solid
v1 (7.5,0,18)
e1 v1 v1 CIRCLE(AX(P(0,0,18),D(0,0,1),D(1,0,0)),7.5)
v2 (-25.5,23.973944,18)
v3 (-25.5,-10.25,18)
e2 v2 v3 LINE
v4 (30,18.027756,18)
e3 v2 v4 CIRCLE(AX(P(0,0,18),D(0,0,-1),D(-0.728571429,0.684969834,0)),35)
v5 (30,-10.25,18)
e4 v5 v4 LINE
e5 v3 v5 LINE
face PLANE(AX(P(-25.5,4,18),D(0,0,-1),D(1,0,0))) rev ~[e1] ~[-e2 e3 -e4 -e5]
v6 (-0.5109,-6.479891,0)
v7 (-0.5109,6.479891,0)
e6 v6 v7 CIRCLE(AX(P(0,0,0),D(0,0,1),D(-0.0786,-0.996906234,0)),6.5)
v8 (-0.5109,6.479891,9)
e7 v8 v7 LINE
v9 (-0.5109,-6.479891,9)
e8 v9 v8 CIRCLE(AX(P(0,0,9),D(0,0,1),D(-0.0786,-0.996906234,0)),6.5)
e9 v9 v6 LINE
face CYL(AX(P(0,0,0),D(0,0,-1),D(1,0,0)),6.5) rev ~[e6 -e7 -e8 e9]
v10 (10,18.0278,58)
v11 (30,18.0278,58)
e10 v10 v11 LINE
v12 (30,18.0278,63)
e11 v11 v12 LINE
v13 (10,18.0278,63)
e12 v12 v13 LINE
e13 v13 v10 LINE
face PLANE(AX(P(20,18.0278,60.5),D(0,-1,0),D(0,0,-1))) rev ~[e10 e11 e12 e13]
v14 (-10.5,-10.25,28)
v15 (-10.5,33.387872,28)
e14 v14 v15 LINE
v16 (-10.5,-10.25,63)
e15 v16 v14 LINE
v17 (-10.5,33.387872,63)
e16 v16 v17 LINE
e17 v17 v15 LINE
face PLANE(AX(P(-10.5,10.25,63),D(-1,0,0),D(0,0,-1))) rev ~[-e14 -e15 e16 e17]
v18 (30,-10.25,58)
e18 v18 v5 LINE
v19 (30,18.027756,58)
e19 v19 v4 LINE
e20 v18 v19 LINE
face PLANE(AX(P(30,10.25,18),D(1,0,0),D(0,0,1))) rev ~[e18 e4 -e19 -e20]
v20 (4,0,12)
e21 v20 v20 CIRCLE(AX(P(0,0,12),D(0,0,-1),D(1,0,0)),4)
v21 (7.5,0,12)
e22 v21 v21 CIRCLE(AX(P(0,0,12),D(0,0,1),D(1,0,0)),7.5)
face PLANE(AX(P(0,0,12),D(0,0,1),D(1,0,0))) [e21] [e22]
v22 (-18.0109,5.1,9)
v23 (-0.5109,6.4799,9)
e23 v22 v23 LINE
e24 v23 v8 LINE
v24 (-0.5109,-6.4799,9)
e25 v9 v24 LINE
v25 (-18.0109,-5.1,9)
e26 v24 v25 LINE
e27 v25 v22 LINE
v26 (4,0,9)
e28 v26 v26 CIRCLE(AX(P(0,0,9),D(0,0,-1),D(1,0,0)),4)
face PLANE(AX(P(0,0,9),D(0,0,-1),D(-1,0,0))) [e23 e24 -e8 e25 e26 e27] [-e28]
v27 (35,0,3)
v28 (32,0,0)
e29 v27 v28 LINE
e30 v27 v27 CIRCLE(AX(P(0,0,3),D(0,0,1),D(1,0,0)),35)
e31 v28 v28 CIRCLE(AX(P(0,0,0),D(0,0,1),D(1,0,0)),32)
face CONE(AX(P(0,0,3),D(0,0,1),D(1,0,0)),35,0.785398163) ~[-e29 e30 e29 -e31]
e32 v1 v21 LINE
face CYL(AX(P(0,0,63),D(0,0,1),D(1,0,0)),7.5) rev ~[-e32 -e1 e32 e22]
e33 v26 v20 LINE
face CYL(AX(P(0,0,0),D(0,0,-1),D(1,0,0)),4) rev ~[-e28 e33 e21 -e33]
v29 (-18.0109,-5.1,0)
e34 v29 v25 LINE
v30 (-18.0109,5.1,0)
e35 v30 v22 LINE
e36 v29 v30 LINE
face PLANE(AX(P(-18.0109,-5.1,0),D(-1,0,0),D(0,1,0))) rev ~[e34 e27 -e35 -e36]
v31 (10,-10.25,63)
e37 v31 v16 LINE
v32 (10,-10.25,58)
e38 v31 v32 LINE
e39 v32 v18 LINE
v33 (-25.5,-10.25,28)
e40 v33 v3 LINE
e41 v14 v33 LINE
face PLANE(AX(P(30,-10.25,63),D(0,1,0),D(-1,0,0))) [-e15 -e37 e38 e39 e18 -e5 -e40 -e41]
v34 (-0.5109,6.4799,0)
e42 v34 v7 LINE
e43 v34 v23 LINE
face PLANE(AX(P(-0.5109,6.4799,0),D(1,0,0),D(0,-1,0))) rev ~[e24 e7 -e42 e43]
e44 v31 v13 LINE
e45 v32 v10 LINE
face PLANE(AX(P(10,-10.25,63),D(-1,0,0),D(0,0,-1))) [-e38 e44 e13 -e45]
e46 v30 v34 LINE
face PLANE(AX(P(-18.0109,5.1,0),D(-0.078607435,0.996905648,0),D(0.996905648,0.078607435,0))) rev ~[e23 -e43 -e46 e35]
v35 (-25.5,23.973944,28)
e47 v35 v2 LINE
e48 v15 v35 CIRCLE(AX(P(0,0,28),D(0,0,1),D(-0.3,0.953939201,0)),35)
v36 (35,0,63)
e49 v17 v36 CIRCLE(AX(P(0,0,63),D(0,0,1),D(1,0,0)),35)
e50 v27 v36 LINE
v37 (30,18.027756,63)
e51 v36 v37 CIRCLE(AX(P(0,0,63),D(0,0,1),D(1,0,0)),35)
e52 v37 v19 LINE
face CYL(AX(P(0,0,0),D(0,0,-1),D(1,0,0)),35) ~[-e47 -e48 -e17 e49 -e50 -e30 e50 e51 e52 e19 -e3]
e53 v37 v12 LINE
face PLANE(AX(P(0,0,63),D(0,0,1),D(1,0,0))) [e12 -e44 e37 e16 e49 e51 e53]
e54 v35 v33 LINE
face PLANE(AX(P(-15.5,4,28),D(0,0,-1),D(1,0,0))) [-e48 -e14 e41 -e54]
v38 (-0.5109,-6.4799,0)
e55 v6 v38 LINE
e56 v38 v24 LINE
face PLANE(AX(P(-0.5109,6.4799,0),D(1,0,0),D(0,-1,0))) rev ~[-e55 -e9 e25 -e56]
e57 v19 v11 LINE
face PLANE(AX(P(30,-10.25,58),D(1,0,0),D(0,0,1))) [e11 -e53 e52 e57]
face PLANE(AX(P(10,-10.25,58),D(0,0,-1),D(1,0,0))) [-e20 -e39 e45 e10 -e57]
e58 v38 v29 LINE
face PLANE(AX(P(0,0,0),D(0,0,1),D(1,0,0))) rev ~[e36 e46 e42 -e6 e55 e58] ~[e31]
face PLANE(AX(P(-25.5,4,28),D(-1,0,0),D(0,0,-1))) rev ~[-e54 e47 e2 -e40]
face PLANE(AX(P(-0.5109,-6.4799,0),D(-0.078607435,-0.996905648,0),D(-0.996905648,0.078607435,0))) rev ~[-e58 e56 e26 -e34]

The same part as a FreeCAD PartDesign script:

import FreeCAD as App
import Part
import Sketcher
from FreeCAD import Vector
Q = App.Units.Quantity


def edges_at(feature, points):
    """Names of the edges that pass closest to the given points."""
    edges = feature.Shape.Edges
    near = lambda p: min(range(len(edges)), key=lambda i: edges[i].distToShape(Part.Vertex(*p))[0])
    return sorted({f"Edge{near(p) + 1}" for p in points})


def add_polygon(sketch, points):
    """Adds a closed chain of lines whose ends are joined by coincident constraints."""
    first, n = sketch.GeometryCount, len(points)
    for a, b in zip(points, points[1:] + points[:1]):
        sketch.addGeometry(Part.LineSegment(App.Vector(*a, 0), App.Vector(*b, 0)), False)
    for i in range(n):
        sketch.addConstraint(Sketcher.Constraint("Coincident", first + i, 2, first + (i + 1) % n, 1))

doc = App.newDocument("Part")
body = doc.addObject("PartDesign::Body", "Body")

sketch1 = doc.addObject("Sketcher::SketchObject", "Sketch")
body.addObject(sketch1)
sketch1.AttachmentSupport = (doc.XY_Plane, [""])
sketch1.MapMode = "FlatFace"
sketch1.addGeometry(Part.Circle(Vector(0, 0, 0), Vector(0, 0, 1), 35), False)
sketch1.addConstraint(Sketcher.Constraint("Coincident", 0, 3, -1, 1))
sketch1.addConstraint(Sketcher.Constraint("Diameter", 0, Q("70 mm")))
pad1 = doc.addObject("PartDesign::Pad", "Pad")
body.addObject(pad1)
pad1.Profile = sketch1
pad1.Length = 63

sketch2 = doc.addObject("Sketcher::SketchObject", "Sketch001")
body.addObject(sketch2)
sketch2.AttachmentSupport = (doc.XY_Plane, [""])
sketch2.MapMode = "FlatFace"
sketch2.AttachmentOffset = App.Placement(Vector(0, 0, 63), App.Rotation())
add_polygon(sketch2, [(30, 10), (-10, 10), (-10, -10), (30, -10)])
sketch2.addConstraint(Sketcher.Constraint("Horizontal", 0))
sketch2.addConstraint(Sketcher.Constraint("Vertical", 1))
sketch2.addConstraint(Sketcher.Constraint("Horizontal", 2))
sketch2.addConstraint(Sketcher.Constraint("Vertical", 3))
sketch2.addConstraint(Sketcher.Constraint("DistanceX", 0, 2, -1, 1, Q("10.5 mm")))
sketch2.addConstraint(Sketcher.Constraint("DistanceX", 0, 2, 0, 1, Q("40.5 mm")))
sketch2.addConstraint(Sketcher.Constraint("DistanceY", 1, 2, 1, 1, Q("20.5 mm")))
sketch2.addConstraint(Sketcher.Constraint("DistanceY", -1, 1, 0, 2, Q("10.25 mm")))
pocket1 = doc.addObject("PartDesign::Pocket", "Pocket")
body.addObject(pocket1)
pocket1.Profile = sketch2
pocket1.Length = 45

sketch3 = doc.addObject("Sketcher::SketchObject", "Sketch002")
body.addObject(sketch3)
sketch3.AttachmentSupport = (doc.XY_Plane, [""])
sketch3.MapMode = "FlatFace"
sketch3.addGeometry(Part.Circle(Vector(0, 0, 0), Vector(0, 0, 1), 6), False)
sketch3.addConstraint(Sketcher.Constraint("Coincident", 0, 3, -1, 1))
sketch3.addConstraint(Sketcher.Constraint("Diameter", 0, Q("13 mm")))
pocket2 = doc.addObject("PartDesign::Pocket", "Pocket001")
body.addObject(pocket2)
pocket2.Profile = sketch3
pocket2.Length = 9
pocket2.Reversed = True

sketch4 = doc.addObject("Sketcher::SketchObject", "Sketch003")
body.addObject(sketch4)
sketch4.AttachmentSupport = (doc.XY_Plane, [""])
sketch4.MapMode = "FlatFace"
add_polygon(sketch4, [(-1, 6), (-1, -6), (-18, -5), (-18, 5)])
sketch4.addConstraint(Sketcher.Constraint("Vertical", 0))
sketch4.addConstraint(Sketcher.Constraint("Vertical", 2))
sketch4.addConstraint(Sketcher.Constraint("Equal", 1, 3))
sketch4.addConstraint(Sketcher.Constraint("DistanceY", 2, 1, 2, 2, Q("10.2 mm")))
sketch4.addConstraint(Sketcher.Constraint("DistanceX", 1, 2, -1, 1, Q("18.011 mm")))
sketch4.addConstraint(Sketcher.Constraint("DistanceY", 1, 2, -1, 1, Q("5.1 mm")))
sketch4.addConstraint(Sketcher.Constraint("DistanceX", 1, 2, 0, 2, Q("17.5 mm")))
sketch4.addConstraint(Sketcher.Constraint("DistanceY", 0, 2, -1, 1, Q("6.48 mm")))
pocket3 = doc.addObject("PartDesign::Pocket", "Pocket002")
body.addObject(pocket3)
pocket3.Profile = sketch4
pocket3.Length = 9
pocket3.Reversed = True

sketch5 = doc.addObject("Sketcher::SketchObject", "Sketch004")
body.addObject(sketch5)
sketch5.AttachmentSupport = (doc.XY_Plane, [""])
sketch5.MapMode = "FlatFace"
sketch5.AttachmentOffset = App.Placement(Vector(0, 0, 63), App.Rotation())
sketch5.addGeometry(Part.Circle(Vector(0, 0, 0), Vector(0, 0, 1), 8), False)
sketch5.addConstraint(Sketcher.Constraint("Coincident", 0, 3, -1, 1))
sketch5.addConstraint(Sketcher.Constraint("Diameter", 0, Q("15 mm")))
pocket4 = doc.addObject("PartDesign::Pocket", "Pocket003")
body.addObject(pocket4)
pocket4.Profile = sketch5
pocket4.Length = 51

sketch6 = doc.addObject("Sketcher::SketchObject", "Sketch005")
body.addObject(sketch6)
sketch6.AttachmentSupport = (doc.XY_Plane, [""])
sketch6.MapMode = "FlatFace"
sketch6.addGeometry(Part.Circle(Vector(0, 0, 0), Vector(0, 0, 1), 4), False)
sketch6.addConstraint(Sketcher.Constraint("Coincident", 0, 3, -1, 1))
sketch6.addConstraint(Sketcher.Constraint("Diameter", 0, Q("8 mm")))
pocket5 = doc.addObject("PartDesign::Pocket", "Pocket004")
body.addObject(pocket5)
pocket5.Profile = sketch6
pocket5.Type = "ThroughAll"
pocket5.Reversed = True

sketch7 = doc.addObject("Sketcher::SketchObject", "Sketch006")
body.addObject(sketch7)
sketch7.AttachmentSupport = (doc.XZ_Plane, [""])
sketch7.MapMode = "FlatFace"
sketch7.AttachmentOffset = App.Placement(Vector(0, 0, -10.25), App.Rotation())
add_polygon(sketch7, [(-10, 18), (30, 18), (30, 63), (-10, 63)])
sketch7.addConstraint(Sketcher.Constraint("Horizontal", 0))
sketch7.addConstraint(Sketcher.Constraint("Vertical", 1))
sketch7.addConstraint(Sketcher.Constraint("Horizontal", 2))
sketch7.addConstraint(Sketcher.Constraint("Vertical", 3))
sketch7.addConstraint(Sketcher.Constraint("DistanceY", 1, 1, 1, 2, Q("45 mm")))
sketch7.addConstraint(Sketcher.Constraint("DistanceX", 0, 1, 0, 2, Q("40.5 mm")))
sketch7.addConstraint(Sketcher.Constraint("DistanceX", -1, 1, 0, 2, Q("30 mm")))
sketch7.addConstraint(Sketcher.Constraint("DistanceY", -1, 1, 0, 2, Q("18 mm")))
pocket6 = doc.addObject("PartDesign::Pocket", "Pocket005")
body.addObject(pocket6)
pocket6.Profile = sketch7
pocket6.Type = "ThroughAll"

sketch8 = doc.addObject("Sketcher::SketchObject", "Sketch007")
body.addObject(sketch8)
sketch8.AttachmentSupport = (doc.XZ_Plane, [""])
sketch8.MapMode = "FlatFace"
sketch8.AttachmentOffset = App.Placement(Vector(0, 0, 10.25), App.Rotation())
add_polygon(sketch8, [(10, 63), (30, 63), (30, 58), (10, 58)])
sketch8.addConstraint(Sketcher.Constraint("Horizontal", 0))
sketch8.addConstraint(Sketcher.Constraint("Vertical", 1))
sketch8.addConstraint(Sketcher.Constraint("Horizontal", 2))
sketch8.addConstraint(Sketcher.Constraint("Vertical", 3))
sketch8.addConstraint(Sketcher.Constraint("DistanceX", 0, 1, 0, 2, Q("20 mm")))
sketch8.addConstraint(Sketcher.Constraint("DistanceY", 1, 2, 1, 1, Q("5 mm")))
sketch8.addConstraint(Sketcher.Constraint("DistanceX", -1, 1, 0, 2, Q("30 mm")))
sketch8.addConstraint(Sketcher.Constraint("DistanceY", -1, 1, 0, 2, Q("63 mm")))
pad2 = doc.addObject("PartDesign::Pad", "Pad001")
body.addObject(pad2)
pad2.Profile = sketch8
pad2.Length = 28.2778
pad2.Reversed = True

sketch9 = doc.addObject("Sketcher::SketchObject", "Sketch008")
body.addObject(sketch9)
sketch9.AttachmentSupport = (doc.XZ_Plane, [""])
sketch9.MapMode = "FlatFace"
sketch9.AttachmentOffset = App.Placement(Vector(0, 0, -4), App.Rotation())
add_polygon(sketch9, [(-10, 28), (-16, 28), (-16, 18), (-10, 18)])
sketch9.addConstraint(Sketcher.Constraint("Horizontal", 0))
sketch9.addConstraint(Sketcher.Constraint("Vertical", 1))
sketch9.addConstraint(Sketcher.Constraint("Horizontal", 2))
sketch9.addConstraint(Sketcher.Constraint("Vertical", 3))
sketch9.addConstraint(Sketcher.Constraint("DistanceX", 0, 2, 0, 1, Q("5 mm")))
sketch9.addConstraint(Sketcher.Constraint("DistanceY", 1, 2, 1, 1, Q("10 mm")))
sketch9.addConstraint(Sketcher.Constraint("DistanceY", -1, 1, 0, 2, Q("28 mm")))
sketch9.addConstraint(Sketcher.Constraint("DistanceX", 0, 2, -1, 1, Q("15.5 mm")))
pocket7 = doc.addObject("PartDesign::Pocket", "Pocket006")
body.addObject(pocket7)
pocket7.Profile = sketch9
pocket7.Type = "ThroughAll"

sketch10 = doc.addObject("Sketcher::SketchObject", "Sketch009")
body.addObject(sketch10)
sketch10.AttachmentSupport = (doc.XZ_Plane, [""])
sketch10.MapMode = "FlatFace"
sketch10.AttachmentOffset = App.Placement(Vector(0, 0, -4), App.Rotation())
add_polygon(sketch10, [(-26, 28), (-10, 28), (-10, 18), (-26, 18)])
sketch10.addConstraint(Sketcher.Constraint("Horizontal", 0))
sketch10.addConstraint(Sketcher.Constraint("Vertical", 1))
sketch10.addConstraint(Sketcher.Constraint("Horizontal", 2))
sketch10.addConstraint(Sketcher.Constraint("Vertical", 3))
sketch10.addConstraint(Sketcher.Constraint("DistanceX", 0, 1, 0, 2, Q("15 mm")))
sketch10.addConstraint(Sketcher.Constraint("DistanceY", 1, 2, 1, 1, Q("10 mm")))
sketch10.addConstraint(Sketcher.Constraint("DistanceY", -1, 1, 0, 2, Q("28 mm")))
sketch10.addConstraint(Sketcher.Constraint("DistanceX", 0, 2, -1, 1, Q("10.5 mm")))
pocket8 = doc.addObject("PartDesign::Pocket", "Pocket007")
body.addObject(pocket8)
pocket8.Profile = sketch10
pocket8.Type = "TwoLengths"
pocket8.Length = 32
pocket8.Length2 = 14.25
doc.recompute()

chamfer = doc.addObject("PartDesign::Chamfer", "Chamfer")
body.addObject(chamfer)
chamfer.Base = (pocket8, edges_at(pocket8, [(-35, 0, 0)]))
chamfer.Size = 3

doc.recompute()
